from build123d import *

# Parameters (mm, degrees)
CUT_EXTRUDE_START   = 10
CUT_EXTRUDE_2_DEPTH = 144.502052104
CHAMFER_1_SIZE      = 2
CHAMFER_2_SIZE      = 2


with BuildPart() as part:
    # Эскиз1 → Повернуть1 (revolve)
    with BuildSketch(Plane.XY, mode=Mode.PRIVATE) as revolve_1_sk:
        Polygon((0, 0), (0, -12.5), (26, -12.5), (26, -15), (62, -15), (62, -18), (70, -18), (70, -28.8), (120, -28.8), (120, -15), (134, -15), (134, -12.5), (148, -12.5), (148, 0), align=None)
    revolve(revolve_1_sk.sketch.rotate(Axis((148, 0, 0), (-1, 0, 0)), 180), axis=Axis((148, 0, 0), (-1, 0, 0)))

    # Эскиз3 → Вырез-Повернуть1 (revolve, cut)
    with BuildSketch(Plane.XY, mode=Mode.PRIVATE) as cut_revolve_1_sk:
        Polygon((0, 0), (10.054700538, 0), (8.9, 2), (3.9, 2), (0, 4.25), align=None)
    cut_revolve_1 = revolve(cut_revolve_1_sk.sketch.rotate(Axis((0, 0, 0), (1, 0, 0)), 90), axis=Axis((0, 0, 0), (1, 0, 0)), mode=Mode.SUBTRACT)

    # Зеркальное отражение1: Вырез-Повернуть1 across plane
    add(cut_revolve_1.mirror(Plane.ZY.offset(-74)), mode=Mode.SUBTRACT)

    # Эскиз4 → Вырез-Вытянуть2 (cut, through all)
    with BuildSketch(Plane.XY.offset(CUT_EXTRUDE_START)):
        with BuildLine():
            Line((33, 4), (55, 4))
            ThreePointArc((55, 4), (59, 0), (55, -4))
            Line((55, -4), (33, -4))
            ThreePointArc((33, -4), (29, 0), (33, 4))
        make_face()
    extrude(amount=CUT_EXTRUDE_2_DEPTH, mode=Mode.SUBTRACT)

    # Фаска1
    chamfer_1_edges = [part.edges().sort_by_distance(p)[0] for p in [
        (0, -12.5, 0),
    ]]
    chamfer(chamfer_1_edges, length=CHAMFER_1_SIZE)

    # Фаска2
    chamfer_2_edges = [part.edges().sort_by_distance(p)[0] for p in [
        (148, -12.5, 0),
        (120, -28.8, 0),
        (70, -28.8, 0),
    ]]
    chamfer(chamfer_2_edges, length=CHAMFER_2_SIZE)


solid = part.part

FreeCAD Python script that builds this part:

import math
import FreeCAD as App
import Part
import Sketcher
Q = App.Units.Quantity


def edges_at(feature, points):
    """Names of the edges that pass closest to the given points."""
    edges = feature.Shape.Edges
    near = lambda p: min(range(len(edges)), key=lambda i: edges[i].distToShape(Part.Vertex(*p))[0])
    return sorted({f"Edge{near(p) + 1}" for p in points})


def add_polygon(sketch, points):
    """Adds a closed chain of lines whose ends are joined by coincident constraints."""
    first, n = sketch.GeometryCount, len(points)
    for a, b in zip(points, points[1:] + points[:1]):
        sketch.addGeometry(Part.LineSegment(App.Vector(*a, 0), App.Vector(*b, 0)), False)
    for i in range(n):
        sketch.addConstraint(Sketcher.Constraint("Coincident", first + i, 2, first + (i + 1) % n, 1))

doc = App.newDocument("Part")
body = doc.addObject("PartDesign::Body", "Body")

# Sketch on XY plane
sketch1 = doc.addObject("Sketcher::SketchObject", "Sketch")
body.addObject(sketch1)
sketch1.AttachmentSupport = (doc.XY_Plane, [""])
sketch1.MapMode = "FlatFace"
add_polygon(sketch1, [(0, 0), (0, -12.5), (26, -12.5), (26, -15), (62, -15), (62, -18), (70, -18), (70, -28.8), (120, -28.8), (120, -15), (134, -15), (134, -12.5), (148, -12.5), (148, 0)])  # lines 0-13
sketch1.addConstraint([
    Sketcher.Constraint("Vertical", 0),
    Sketcher.Constraint("Horizontal", 1),
    Sketcher.Constraint("Vertical", 2),
    Sketcher.Constraint("Horizontal", 3),
    Sketcher.Constraint("Vertical", 4),
    Sketcher.Constraint("Horizontal", 5),
    Sketcher.Constraint("Vertical", 6),
    Sketcher.Constraint("Horizontal", 7),
    Sketcher.Constraint("Vertical", 8),
    Sketcher.Constraint("Horizontal", 9),
    Sketcher.Constraint("Vertical", 10),
    Sketcher.Constraint("Horizontal", 11),
    Sketcher.Constraint("Vertical", 12),
    Sketcher.Constraint("Horizontal", 13),
    Sketcher.Constraint("Coincident", 13, 2, -1, 1),
    Sketcher.Constraint("Horizontal", 3, 2, 8, 2),
    Sketcher.Constraint("Horizontal", 1, 2, 10, 2),
    Sketcher.Constraint("Equal", 9, 11),
    Sketcher.Constraint("DistanceX", 1, 1, 1, 2, 26.0),
    Sketcher.Constraint("DistanceX", 3, 1, 3, 2, 36.0),
    Sketcher.Constraint("DistanceX", 5, 1, 5, 2, 8.0),
    Sketcher.Constraint("DistanceX", 7, 1, 7, 2, 50.0),
    Sketcher.Constraint("DistanceX", 9, 1, 9, 2, 14.0),
    Sketcher.Constraint("DistanceY", 4, 2, 4, 1, 3.0),
    Sketcher.Constraint("DistanceY", 0, 2, 0, 1, 12.5),
    Sketcher.Constraint("DistanceY", 2, 2, 2, 1, 2.5),
    Sketcher.Constraint("DistanceY", 6, 2, 6, 1, 10.8),
])
revolution = doc.addObject("PartDesign::Revolution", "Revolution")
body.addObject(revolution)
revolution.Profile = sketch1
revolution.ReferenceAxis = (sketch1, ["H_Axis"])
revolution.Angle = 360

# Sketch on XY plane
sketch2 = doc.addObject("Sketcher::SketchObject", "Sketch001")
body.addObject(sketch2)
sketch2.AttachmentSupport = (doc.XY_Plane, [""])
sketch2.MapMode = "FlatFace"
add_polygon(sketch2, [(0, 0), (10.1, 0), (8.9, 2), (3.9, 2), (0, 4.2)])  # lines 0-4
sketch2.addConstraint([
    Sketcher.Constraint("Horizontal", 0),
    Sketcher.Constraint("Horizontal", 2),
    Sketcher.Constraint("Vertical", 4),
    Sketcher.Constraint("Coincident", 4, 2, -1, 1),
    Sketcher.Constraint("DistanceX", 2, 2, 2, 1, 5.0),
    Sketcher.Constraint("Angle", 1, Q("120 deg")),
    Sketcher.Constraint("DistanceY", -1, 1, 1, 2, 2.0),
    Sketcher.Constraint("DistanceY", 4, 2, 4, 1, 4.25),
    Sketcher.Constraint("DistanceX", -1, 1, 1, 2, 8.9),
])
groove = doc.addObject("PartDesign::Groove", "Groove")
body.addObject(groove)
groove.Profile = sketch2
groove.ReferenceAxis = (sketch2, ["H_Axis"])
groove.Angle = 360
doc.recompute()

datumplane = doc.addObject("PartDesign::Plane", "DatumPlane")
body.addObject(datumplane)
datumplane.AttachmentSupport = (doc.YZ_Plane, [""])
datumplane.MapMode = "FlatFace"
datumplane.AttachmentOffset = App.Placement(App.Vector(0, 0, 74), App.Rotation())
mirrored = doc.addObject("PartDesign::Mirrored", "Mirrored")
body.addObject(mirrored)
mirrored.Originals = [groove]
mirrored.MirrorPlane = (datumplane, [""])
body.Tip = mirrored

# Sketch on XY plane
sketch3 = doc.addObject("Sketcher::SketchObject", "Sketch002")
body.addObject(sketch3)
sketch3.AttachmentSupport = (doc.XY_Plane, [""])
sketch3.MapMode = "FlatFace"
sketch3.AttachmentOffset = App.Placement(App.Vector(0, 0, 10), App.Rotation())
sketch3.addGeometry([
    Part.LineSegment(App.Vector(55, 4, 0), App.Vector(33, 4, 0)),
    Part.ArcOfCircle(Part.Circle(App.Vector(33, 0, 0), App.Vector(0, 0, 1), 4), math.radians(90), math.radians(270)),
    Part.LineSegment(App.Vector(33, -4, 0), App.Vector(55, -4, 0)),
    Part.ArcOfCircle(Part.Circle(App.Vector(55, 0, 0), App.Vector(0, 0, 1), 4), math.radians(-90), math.radians(90)),
], False)
sketch3.addConstraint([
    Sketcher.Constraint("Tangent", 0, 2, 1, 1),
    Sketcher.Constraint("Tangent", 1, 2, 2, 1),
    Sketcher.Constraint("Tangent", 2, 2, 3, 1),
    Sketcher.Constraint("Tangent", 3, 2, 0, 1),
    Sketcher.Constraint("Horizontal", 0),
    Sketcher.Constraint("Horizontal", 2),
    Sketcher.Constraint("PointOnObject", 1, 3, -1),
    Sketcher.Constraint("Radius", 1, 4.0),
    Sketcher.Constraint("DistanceX", 0, 2, 0, 1, 22.0),
    Sketcher.Constraint("DistanceX", -1, 1, 1, 3, 33.0),
])
pocket1 = doc.addObject("PartDesign::Pocket", "Pocket")
body.addObject(pocket1)
pocket1.Profile = sketch3
pocket1.Type = "ThroughAll"
pocket1.Reversed = True
doc.recompute()

chamfer = doc.addObject("PartDesign::Chamfer", "Chamfer")
body.addObject(chamfer)
chamfer.Base = (pocket1, edges_at(pocket1, [(0, -12.5, 0)]))
chamfer.Size = 2
doc.recompute()

chamfer2 = doc.addObject("PartDesign::Chamfer", "Chamfer001")
body.addObject(chamfer2)
chamfer2.Base = (chamfer, edges_at(chamfer, [(148, -12.5, 0), (120, -28.8, 0), (70, -28.8, 0)]))
chamfer2.Size = 2

doc.recompute()
